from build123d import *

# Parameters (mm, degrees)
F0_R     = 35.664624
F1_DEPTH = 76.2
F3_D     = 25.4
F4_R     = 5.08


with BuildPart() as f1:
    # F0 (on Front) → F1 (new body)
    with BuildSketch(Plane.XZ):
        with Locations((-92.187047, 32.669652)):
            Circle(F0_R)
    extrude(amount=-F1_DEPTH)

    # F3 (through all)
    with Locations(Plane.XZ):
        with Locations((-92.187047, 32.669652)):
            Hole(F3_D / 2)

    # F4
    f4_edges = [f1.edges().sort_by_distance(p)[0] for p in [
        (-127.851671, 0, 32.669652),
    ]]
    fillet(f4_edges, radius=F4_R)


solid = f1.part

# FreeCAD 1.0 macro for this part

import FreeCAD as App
import Part
import Sketcher

V = App.Vector
Q = App.Units.Quantity


def edges_at(feature, points):
    """Names of the edges that pass closest to the given points."""
    edges = feature.Shape.Edges
    near = lambda p: min(range(len(edges)), key=lambda i: edges[i].distToShape(Part.Vertex(*p))[0])
    return sorted({f"Edge{near(p) + 1}" for p in points})

doc = App.newDocument("Part")
body = doc.addObject("PartDesign::Body", "Body")

# Sketch on XZ plane
sketch1 = body.newObject("Sketcher::SketchObject", "Sketch")
sketch1.AttachmentSupport = (doc.getObject("XZ_Plane"), [""])
sketch1.MapMode = "FlatFace"
sketch1.addGeometry(Part.Circle(V(-92.187047, 32.669652, 0), V(0, 0, 1), 35.664624), False)
sketch1.addConstraint([
    Sketcher.Constraint("Diameter", 0, 71.329248),
    Sketcher.Constraint("DistanceX", 0, 3, -1, 1, 92.187047),
    Sketcher.Constraint("DistanceY", -1, 1, 0, 3, 32.669652),
])
pad1 = body.newObject("PartDesign::Pad", "Pad")
pad1.Profile = sketch1
pad1.Length = Q("3 in")
pad1.Reversed = True

# Sketch on XZ plane
sketch2 = body.newObject("Sketcher::SketchObject", "Sketch001")
sketch2.AttachmentSupport = (doc.getObject("XZ_Plane"), [""])
sketch2.MapMode = "FlatFace"
sketch2.addGeometry(Part.Circle(V(-92.187047, 32.669652, 0), V(0, 0, 1), 12.7), False)
sketch2.addConstraint([
    Sketcher.Constraint("Diameter", 0, Q("1 in")),
    Sketcher.Constraint("DistanceX", 0, 3, -1, 1, 92.187047),
    Sketcher.Constraint("DistanceY", -1, 1, 0, 3, 32.669652),
])
doc.recompute()
hole = body.newObject("PartDesign::Hole", "Hole")
hole.Profile = sketch2
hole.ThreadType = "None"
hole.Diameter = Q("1 in")
hole.DepthType = "ThroughAll"
doc.recompute()

fillet = body.newObject("PartDesign::Fillet", "Fillet")
fillet.Base = (hole, edges_at(hole, [(-127.852, 0, 32.67)]))
fillet.Radius = Q("0.2 in")

doc.recompute()
